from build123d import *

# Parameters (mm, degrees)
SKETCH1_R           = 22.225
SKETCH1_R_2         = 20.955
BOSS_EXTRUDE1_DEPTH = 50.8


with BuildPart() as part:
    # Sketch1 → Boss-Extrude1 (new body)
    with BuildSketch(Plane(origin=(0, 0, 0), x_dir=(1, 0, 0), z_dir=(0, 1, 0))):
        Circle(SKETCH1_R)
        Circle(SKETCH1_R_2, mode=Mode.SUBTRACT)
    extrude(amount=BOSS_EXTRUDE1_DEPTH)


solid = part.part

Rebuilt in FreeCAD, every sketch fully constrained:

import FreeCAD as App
import Part
import Sketcher
Q = App.Units.Quantity

doc = App.newDocument("Part")
body = doc.addObject("PartDesign::Body", "Body")

# Sketch on XZ plane
sketch1 = body.newObject("Sketcher::SketchObject", "Sketch")
sketch1.AttachmentSupport = (doc.getObject("XZ_Plane"), [""])
sketch1.MapMode = "FlatFace"
sketch1.addGeometry(Part.Circle(App.Vector(0, 0, 0), App.Vector(0, 0, 1), 22.225), False)
sketch1.addGeometry(Part.Circle(App.Vector(0, 0, 0), App.Vector(0, 0, 1), 20.955), False)
sketch1.addConstraint(Sketcher.Constraint("Coincident", 0, 3, -1, 1))
sketch1.addConstraint(Sketcher.Constraint("Coincident", 1, 3, -1, 1))
sketch1.addConstraint(Sketcher.Constraint("Diameter", 0, Q("1.75 in")))
sketch1.addConstraint(Sketcher.Constraint("Diameter", 1, Q("1.65 in")))
pad1 = body.newObject("PartDesign::Pad", "Pad")
pad1.Profile = sketch1
pad1.Length = Q("2 in")
pad1.Reversed = True

doc.recompute()
